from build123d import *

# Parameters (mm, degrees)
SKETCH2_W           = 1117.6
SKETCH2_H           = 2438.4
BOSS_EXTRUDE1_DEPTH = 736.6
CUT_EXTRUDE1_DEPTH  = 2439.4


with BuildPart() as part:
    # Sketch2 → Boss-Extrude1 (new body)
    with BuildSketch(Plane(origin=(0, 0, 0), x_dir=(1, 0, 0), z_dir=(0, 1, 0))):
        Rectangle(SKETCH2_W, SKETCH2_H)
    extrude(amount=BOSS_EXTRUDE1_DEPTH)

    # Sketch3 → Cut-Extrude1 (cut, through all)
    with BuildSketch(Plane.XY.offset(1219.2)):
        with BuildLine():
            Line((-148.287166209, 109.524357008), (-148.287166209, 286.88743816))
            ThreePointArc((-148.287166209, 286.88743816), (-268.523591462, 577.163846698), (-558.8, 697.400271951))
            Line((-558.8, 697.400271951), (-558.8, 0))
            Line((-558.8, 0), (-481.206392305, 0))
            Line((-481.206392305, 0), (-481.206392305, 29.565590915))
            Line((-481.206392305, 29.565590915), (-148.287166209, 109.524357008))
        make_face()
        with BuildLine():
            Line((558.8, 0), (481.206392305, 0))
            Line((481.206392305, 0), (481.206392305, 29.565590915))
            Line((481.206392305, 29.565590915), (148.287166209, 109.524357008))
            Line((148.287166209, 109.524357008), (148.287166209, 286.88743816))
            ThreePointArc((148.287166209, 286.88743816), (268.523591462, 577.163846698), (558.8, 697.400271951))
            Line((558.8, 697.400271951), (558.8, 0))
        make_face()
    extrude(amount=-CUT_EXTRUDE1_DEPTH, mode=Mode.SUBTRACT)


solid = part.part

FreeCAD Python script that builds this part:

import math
import FreeCAD as App
import Part
import Sketcher
Q = App.Units.Quantity

doc = App.newDocument("Part")
body = doc.addObject("PartDesign::Body", "Body")

# Sketch on XZ plane
sketch1 = body.newObject("Sketcher::SketchObject", "Sketch")
sketch1.AttachmentSupport = (doc.getObject("XZ_Plane"), [""])
sketch1.MapMode = "FlatFace"
sketch1.addGeometry([
    Part.LineSegment(App.Vector(-558.8, -1219.2, 0), App.Vector(-558.8, 1219.2, 0)),
    Part.LineSegment(App.Vector(-558.8, 1219.2, 0), App.Vector(558.8, 1219.2, 0)),
    Part.LineSegment(App.Vector(558.8, 1219.2, 0), App.Vector(558.8, -1219.2, 0)),
    Part.LineSegment(App.Vector(558.8, -1219.2, 0), App.Vector(-558.8, -1219.2, 0)),
], False)
sketch1.addConstraint([
    Sketcher.Constraint("Coincident", 0, 2, 1, 1),
    Sketcher.Constraint("Coincident", 1, 2, 2, 1),
    Sketcher.Constraint("Coincident", 2, 2, 3, 1),
    Sketcher.Constraint("Coincident", 3, 2, 0, 1),
    Sketcher.Constraint("Vertical", 0),
    Sketcher.Constraint("Horizontal", 1),
    Sketcher.Constraint("Vertical", 2),
    Sketcher.Constraint("Horizontal", 3),
    Sketcher.Constraint("Symmetric", 0, 2, 2, 2, -1, 1),
    Sketcher.Constraint("DistanceX", 1, 1, 1, 2, Q("44 in")),
    Sketcher.Constraint("DistanceY", 0, 1, 0, 2, Q("96 in")),
])
pad1 = body.newObject("PartDesign::Pad", "Pad")
pad1.Profile = sketch1
pad1.Length = Q("29 in")
pad1.Reversed = True

# Sketch on XY plane
sketch2 = body.newObject("Sketcher::SketchObject", "Sketch001")
sketch2.AttachmentSupport = (doc.getObject("XY_Plane"), [""])
sketch2.MapMode = "FlatFace"
sketch2.AttachmentOffset = App.Placement(App.Vector(0, 0, 48 * 25.4), App.Rotation())
sketch2.addGeometry([
    Part.LineSegment(App.Vector(-148.287166, 109.524357, 0), App.Vector(-148.287166, 286.887438, 0)),  # 0
    Part.ArcOfCircle(Part.Circle(App.Vector(-558.8, 286.887438, 0), App.Vector(0, 0, 1), 410.512834), math.radians(0), math.radians(90)),  # 1
    Part.LineSegment(App.Vector(-558.8, 697.400272, 0), App.Vector(-558.8, 0, 0)),  # 2
    Part.LineSegment(App.Vector(-558.8, 0, 0), App.Vector(-481.206392, 0, 0)),  # 3
    Part.LineSegment(App.Vector(-481.206392, 0, 0), App.Vector(-481.206392, 29.565591, 0)),  # 4
    Part.LineSegment(App.Vector(-481.206392, 29.565591, 0), App.Vector(-148.287166, 109.524357, 0)),  # 5
    Part.LineSegment(App.Vector(481.206392, 0, 0), App.Vector(558.8, 0, 0)),  # 6
    Part.LineSegment(App.Vector(558.8, 0, 0), App.Vector(558.8, 697.400272, 0)),  # 7
    Part.ArcOfCircle(Part.Circle(App.Vector(558.8, 286.887438, 0), App.Vector(0, 0, 1), 410.512834), math.radians(90), math.radians(180)),  # 8
    Part.LineSegment(App.Vector(148.287166, 286.887438, 0), App.Vector(148.287166, 109.524357, 0)),  # 9
    Part.LineSegment(App.Vector(148.287166, 109.524357, 0), App.Vector(481.206392, 29.565591, 0)),  # 10
    Part.LineSegment(App.Vector(481.206392, 29.565591, 0), App.Vector(481.206392, 0, 0)),  # 11
], False)
sketch2.addConstraint([
    Sketcher.Constraint("Tangent", 0, 2, 1, 1),
    Sketcher.Constraint("Coincident", 1, 2, 2, 1),
    Sketcher.Constraint("Coincident", 2, 2, 3, 1),
    Sketcher.Constraint("Coincident", 3, 2, 4, 1),
    Sketcher.Constraint("Coincident", 4, 2, 5, 1),
    Sketcher.Constraint("Coincident", 5, 2, 0, 1),
    Sketcher.Constraint("Coincident", 6, 2, 7, 1),
    Sketcher.Constraint("Coincident", 7, 2, 8, 1),
    Sketcher.Constraint("Tangent", 8, 2, 9, 1),
    Sketcher.Constraint("Coincident", 9, 2, 10, 1),
    Sketcher.Constraint("Coincident", 10, 2, 11, 1),
    Sketcher.Constraint("Coincident", 11, 2, 6, 1),
    Sketcher.Constraint("Vertical", 0),
    Sketcher.Constraint("Vertical", 2),
    Sketcher.Constraint("Horizontal", 3),
    Sketcher.Constraint("Vertical", 4),
    Sketcher.Constraint("Horizontal", 6),
    Sketcher.Constraint("Vertical", 7),
    Sketcher.Constraint("Vertical", 9),
    Sketcher.Constraint("Vertical", 11),
    Sketcher.Constraint("Equal", 1, 8),
    Sketcher.Constraint("Symmetric", 2, 2, 6, 2, -1, 1),
    Sketcher.Constraint("Symmetric", 1, 3, 8, 3, -2),
    Sketcher.Constraint("Symmetric", 4, 2, 10, 2, -2),
    Sketcher.Constraint("PointOnObject", 2, 2, -1),
    Sketcher.Constraint("Horizontal", 5, 2, 9, 2),
    Sketcher.Constraint("Vertical", 8, 3, 6, 2),
    Sketcher.Constraint("DistanceX", 1, 3, -1, 1, Q("22 in")),
    Sketcher.Constraint("Radius", 1, Q("410.512834 mm")),
    Sketcher.Constraint("DistanceY", 0, 1, 0, 2, Q("177.363081 mm")),
    Sketcher.Constraint("DistanceY", 2, 2, 2, 1, Q("697.400272 mm")),
    Sketcher.Constraint("DistanceY", 4, 1, 4, 2, Q("29.565591 mm")),
    Sketcher.Constraint("DistanceX", 3, 1, 3, 2, Q("77.593608 mm")),
])
pocket1 = body.newObject("PartDesign::Pocket", "Pocket")
pocket1.Profile = sketch2
pocket1.Type = "ThroughAll"

doc.recompute()
